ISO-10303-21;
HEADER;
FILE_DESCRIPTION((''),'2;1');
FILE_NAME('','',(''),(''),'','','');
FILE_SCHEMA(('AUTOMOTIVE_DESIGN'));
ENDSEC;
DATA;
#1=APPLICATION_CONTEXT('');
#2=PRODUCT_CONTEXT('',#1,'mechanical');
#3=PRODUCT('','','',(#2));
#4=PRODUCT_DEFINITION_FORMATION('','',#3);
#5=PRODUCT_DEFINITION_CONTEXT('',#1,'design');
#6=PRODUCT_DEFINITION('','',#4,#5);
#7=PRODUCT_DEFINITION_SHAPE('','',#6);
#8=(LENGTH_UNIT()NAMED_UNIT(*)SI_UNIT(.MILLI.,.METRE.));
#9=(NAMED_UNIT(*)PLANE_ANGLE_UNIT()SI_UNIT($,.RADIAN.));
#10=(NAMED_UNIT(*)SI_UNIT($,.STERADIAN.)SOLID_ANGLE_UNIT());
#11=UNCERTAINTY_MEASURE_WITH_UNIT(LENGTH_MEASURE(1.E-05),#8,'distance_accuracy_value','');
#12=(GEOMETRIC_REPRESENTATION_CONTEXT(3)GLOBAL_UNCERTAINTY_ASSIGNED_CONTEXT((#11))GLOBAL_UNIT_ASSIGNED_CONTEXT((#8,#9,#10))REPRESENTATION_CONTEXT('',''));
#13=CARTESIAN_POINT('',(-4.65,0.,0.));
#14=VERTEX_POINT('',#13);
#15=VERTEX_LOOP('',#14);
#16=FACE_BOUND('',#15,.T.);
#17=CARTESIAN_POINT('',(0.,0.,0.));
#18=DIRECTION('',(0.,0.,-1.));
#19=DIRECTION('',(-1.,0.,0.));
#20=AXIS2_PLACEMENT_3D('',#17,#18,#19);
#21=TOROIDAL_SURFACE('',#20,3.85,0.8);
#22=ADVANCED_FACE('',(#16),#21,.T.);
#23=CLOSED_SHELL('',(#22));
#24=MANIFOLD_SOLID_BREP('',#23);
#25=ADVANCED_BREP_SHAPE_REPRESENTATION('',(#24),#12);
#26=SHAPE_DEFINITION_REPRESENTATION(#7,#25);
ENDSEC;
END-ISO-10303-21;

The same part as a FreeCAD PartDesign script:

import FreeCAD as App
import Part
import Sketcher

doc = App.newDocument("Part")
params = doc.addObject("Spreadsheet::Sheet", "Params")
for row, (alias, value) in enumerate([
    ("sketch1_diameter", "1.6 mm"),
    ("sketch2_diameter", "6.1 mm"),
], start=1):
    params.set(f"A{row}", alias)
    params.set(f"B{row}", "=" + value)
    params.setAlias(f"B{row}", alias)

body = doc.addObject("PartDesign::Body", "Body")

# Sketch on XZ plane
sketch1 = body.newObject("Sketcher::SketchObject", "Sketch")
sketch1.AttachmentSupport = (doc.getObject("XZ_Plane"), [""])
sketch1.MapMode = "FlatFace"
sketch1.addGeometry(Part.Circle(App.Vector(-3.9, 0, 0), App.Vector(0, 0, 1), 0.8), False)
sketch1.addConstraint(Sketcher.Constraint("PointOnObject", 0, 3, -1))
sketch1.addConstraint(Sketcher.Constraint("Diameter", 0, 1.6))
sketch1.addConstraint(Sketcher.Constraint("DistanceX", 0, 3, -1, 1, 3.85))
sketch1.setExpression("Constraints[1]", "Params.sketch1_diameter")

# Sketch on XY plane
sketch2 = body.newObject("Sketcher::SketchObject", "Sketch001")
sketch2.AttachmentSupport = (doc.getObject("XY_Plane"), [""])
sketch2.MapMode = "FlatFace"
sketch2.addGeometry(Part.Circle(App.Vector(0, 0, 0), App.Vector(0, 0, 1), 3), False)
sketch2.addConstraint(Sketcher.Constraint("Coincident", 0, 3, -1, 1))
sketch2.addConstraint(Sketcher.Constraint("Diameter", 0, 6.1))
sketch2.setExpression("Constraints[1]", "Params.sketch2_diameter")
doc.recompute()

additivepipe = body.newObject("PartDesign::AdditivePipe", "AdditivePipe")
additivepipe.Profile = sketch1
additivepipe.Spine = (sketch2, ["Edge1"])

doc.recompute()
